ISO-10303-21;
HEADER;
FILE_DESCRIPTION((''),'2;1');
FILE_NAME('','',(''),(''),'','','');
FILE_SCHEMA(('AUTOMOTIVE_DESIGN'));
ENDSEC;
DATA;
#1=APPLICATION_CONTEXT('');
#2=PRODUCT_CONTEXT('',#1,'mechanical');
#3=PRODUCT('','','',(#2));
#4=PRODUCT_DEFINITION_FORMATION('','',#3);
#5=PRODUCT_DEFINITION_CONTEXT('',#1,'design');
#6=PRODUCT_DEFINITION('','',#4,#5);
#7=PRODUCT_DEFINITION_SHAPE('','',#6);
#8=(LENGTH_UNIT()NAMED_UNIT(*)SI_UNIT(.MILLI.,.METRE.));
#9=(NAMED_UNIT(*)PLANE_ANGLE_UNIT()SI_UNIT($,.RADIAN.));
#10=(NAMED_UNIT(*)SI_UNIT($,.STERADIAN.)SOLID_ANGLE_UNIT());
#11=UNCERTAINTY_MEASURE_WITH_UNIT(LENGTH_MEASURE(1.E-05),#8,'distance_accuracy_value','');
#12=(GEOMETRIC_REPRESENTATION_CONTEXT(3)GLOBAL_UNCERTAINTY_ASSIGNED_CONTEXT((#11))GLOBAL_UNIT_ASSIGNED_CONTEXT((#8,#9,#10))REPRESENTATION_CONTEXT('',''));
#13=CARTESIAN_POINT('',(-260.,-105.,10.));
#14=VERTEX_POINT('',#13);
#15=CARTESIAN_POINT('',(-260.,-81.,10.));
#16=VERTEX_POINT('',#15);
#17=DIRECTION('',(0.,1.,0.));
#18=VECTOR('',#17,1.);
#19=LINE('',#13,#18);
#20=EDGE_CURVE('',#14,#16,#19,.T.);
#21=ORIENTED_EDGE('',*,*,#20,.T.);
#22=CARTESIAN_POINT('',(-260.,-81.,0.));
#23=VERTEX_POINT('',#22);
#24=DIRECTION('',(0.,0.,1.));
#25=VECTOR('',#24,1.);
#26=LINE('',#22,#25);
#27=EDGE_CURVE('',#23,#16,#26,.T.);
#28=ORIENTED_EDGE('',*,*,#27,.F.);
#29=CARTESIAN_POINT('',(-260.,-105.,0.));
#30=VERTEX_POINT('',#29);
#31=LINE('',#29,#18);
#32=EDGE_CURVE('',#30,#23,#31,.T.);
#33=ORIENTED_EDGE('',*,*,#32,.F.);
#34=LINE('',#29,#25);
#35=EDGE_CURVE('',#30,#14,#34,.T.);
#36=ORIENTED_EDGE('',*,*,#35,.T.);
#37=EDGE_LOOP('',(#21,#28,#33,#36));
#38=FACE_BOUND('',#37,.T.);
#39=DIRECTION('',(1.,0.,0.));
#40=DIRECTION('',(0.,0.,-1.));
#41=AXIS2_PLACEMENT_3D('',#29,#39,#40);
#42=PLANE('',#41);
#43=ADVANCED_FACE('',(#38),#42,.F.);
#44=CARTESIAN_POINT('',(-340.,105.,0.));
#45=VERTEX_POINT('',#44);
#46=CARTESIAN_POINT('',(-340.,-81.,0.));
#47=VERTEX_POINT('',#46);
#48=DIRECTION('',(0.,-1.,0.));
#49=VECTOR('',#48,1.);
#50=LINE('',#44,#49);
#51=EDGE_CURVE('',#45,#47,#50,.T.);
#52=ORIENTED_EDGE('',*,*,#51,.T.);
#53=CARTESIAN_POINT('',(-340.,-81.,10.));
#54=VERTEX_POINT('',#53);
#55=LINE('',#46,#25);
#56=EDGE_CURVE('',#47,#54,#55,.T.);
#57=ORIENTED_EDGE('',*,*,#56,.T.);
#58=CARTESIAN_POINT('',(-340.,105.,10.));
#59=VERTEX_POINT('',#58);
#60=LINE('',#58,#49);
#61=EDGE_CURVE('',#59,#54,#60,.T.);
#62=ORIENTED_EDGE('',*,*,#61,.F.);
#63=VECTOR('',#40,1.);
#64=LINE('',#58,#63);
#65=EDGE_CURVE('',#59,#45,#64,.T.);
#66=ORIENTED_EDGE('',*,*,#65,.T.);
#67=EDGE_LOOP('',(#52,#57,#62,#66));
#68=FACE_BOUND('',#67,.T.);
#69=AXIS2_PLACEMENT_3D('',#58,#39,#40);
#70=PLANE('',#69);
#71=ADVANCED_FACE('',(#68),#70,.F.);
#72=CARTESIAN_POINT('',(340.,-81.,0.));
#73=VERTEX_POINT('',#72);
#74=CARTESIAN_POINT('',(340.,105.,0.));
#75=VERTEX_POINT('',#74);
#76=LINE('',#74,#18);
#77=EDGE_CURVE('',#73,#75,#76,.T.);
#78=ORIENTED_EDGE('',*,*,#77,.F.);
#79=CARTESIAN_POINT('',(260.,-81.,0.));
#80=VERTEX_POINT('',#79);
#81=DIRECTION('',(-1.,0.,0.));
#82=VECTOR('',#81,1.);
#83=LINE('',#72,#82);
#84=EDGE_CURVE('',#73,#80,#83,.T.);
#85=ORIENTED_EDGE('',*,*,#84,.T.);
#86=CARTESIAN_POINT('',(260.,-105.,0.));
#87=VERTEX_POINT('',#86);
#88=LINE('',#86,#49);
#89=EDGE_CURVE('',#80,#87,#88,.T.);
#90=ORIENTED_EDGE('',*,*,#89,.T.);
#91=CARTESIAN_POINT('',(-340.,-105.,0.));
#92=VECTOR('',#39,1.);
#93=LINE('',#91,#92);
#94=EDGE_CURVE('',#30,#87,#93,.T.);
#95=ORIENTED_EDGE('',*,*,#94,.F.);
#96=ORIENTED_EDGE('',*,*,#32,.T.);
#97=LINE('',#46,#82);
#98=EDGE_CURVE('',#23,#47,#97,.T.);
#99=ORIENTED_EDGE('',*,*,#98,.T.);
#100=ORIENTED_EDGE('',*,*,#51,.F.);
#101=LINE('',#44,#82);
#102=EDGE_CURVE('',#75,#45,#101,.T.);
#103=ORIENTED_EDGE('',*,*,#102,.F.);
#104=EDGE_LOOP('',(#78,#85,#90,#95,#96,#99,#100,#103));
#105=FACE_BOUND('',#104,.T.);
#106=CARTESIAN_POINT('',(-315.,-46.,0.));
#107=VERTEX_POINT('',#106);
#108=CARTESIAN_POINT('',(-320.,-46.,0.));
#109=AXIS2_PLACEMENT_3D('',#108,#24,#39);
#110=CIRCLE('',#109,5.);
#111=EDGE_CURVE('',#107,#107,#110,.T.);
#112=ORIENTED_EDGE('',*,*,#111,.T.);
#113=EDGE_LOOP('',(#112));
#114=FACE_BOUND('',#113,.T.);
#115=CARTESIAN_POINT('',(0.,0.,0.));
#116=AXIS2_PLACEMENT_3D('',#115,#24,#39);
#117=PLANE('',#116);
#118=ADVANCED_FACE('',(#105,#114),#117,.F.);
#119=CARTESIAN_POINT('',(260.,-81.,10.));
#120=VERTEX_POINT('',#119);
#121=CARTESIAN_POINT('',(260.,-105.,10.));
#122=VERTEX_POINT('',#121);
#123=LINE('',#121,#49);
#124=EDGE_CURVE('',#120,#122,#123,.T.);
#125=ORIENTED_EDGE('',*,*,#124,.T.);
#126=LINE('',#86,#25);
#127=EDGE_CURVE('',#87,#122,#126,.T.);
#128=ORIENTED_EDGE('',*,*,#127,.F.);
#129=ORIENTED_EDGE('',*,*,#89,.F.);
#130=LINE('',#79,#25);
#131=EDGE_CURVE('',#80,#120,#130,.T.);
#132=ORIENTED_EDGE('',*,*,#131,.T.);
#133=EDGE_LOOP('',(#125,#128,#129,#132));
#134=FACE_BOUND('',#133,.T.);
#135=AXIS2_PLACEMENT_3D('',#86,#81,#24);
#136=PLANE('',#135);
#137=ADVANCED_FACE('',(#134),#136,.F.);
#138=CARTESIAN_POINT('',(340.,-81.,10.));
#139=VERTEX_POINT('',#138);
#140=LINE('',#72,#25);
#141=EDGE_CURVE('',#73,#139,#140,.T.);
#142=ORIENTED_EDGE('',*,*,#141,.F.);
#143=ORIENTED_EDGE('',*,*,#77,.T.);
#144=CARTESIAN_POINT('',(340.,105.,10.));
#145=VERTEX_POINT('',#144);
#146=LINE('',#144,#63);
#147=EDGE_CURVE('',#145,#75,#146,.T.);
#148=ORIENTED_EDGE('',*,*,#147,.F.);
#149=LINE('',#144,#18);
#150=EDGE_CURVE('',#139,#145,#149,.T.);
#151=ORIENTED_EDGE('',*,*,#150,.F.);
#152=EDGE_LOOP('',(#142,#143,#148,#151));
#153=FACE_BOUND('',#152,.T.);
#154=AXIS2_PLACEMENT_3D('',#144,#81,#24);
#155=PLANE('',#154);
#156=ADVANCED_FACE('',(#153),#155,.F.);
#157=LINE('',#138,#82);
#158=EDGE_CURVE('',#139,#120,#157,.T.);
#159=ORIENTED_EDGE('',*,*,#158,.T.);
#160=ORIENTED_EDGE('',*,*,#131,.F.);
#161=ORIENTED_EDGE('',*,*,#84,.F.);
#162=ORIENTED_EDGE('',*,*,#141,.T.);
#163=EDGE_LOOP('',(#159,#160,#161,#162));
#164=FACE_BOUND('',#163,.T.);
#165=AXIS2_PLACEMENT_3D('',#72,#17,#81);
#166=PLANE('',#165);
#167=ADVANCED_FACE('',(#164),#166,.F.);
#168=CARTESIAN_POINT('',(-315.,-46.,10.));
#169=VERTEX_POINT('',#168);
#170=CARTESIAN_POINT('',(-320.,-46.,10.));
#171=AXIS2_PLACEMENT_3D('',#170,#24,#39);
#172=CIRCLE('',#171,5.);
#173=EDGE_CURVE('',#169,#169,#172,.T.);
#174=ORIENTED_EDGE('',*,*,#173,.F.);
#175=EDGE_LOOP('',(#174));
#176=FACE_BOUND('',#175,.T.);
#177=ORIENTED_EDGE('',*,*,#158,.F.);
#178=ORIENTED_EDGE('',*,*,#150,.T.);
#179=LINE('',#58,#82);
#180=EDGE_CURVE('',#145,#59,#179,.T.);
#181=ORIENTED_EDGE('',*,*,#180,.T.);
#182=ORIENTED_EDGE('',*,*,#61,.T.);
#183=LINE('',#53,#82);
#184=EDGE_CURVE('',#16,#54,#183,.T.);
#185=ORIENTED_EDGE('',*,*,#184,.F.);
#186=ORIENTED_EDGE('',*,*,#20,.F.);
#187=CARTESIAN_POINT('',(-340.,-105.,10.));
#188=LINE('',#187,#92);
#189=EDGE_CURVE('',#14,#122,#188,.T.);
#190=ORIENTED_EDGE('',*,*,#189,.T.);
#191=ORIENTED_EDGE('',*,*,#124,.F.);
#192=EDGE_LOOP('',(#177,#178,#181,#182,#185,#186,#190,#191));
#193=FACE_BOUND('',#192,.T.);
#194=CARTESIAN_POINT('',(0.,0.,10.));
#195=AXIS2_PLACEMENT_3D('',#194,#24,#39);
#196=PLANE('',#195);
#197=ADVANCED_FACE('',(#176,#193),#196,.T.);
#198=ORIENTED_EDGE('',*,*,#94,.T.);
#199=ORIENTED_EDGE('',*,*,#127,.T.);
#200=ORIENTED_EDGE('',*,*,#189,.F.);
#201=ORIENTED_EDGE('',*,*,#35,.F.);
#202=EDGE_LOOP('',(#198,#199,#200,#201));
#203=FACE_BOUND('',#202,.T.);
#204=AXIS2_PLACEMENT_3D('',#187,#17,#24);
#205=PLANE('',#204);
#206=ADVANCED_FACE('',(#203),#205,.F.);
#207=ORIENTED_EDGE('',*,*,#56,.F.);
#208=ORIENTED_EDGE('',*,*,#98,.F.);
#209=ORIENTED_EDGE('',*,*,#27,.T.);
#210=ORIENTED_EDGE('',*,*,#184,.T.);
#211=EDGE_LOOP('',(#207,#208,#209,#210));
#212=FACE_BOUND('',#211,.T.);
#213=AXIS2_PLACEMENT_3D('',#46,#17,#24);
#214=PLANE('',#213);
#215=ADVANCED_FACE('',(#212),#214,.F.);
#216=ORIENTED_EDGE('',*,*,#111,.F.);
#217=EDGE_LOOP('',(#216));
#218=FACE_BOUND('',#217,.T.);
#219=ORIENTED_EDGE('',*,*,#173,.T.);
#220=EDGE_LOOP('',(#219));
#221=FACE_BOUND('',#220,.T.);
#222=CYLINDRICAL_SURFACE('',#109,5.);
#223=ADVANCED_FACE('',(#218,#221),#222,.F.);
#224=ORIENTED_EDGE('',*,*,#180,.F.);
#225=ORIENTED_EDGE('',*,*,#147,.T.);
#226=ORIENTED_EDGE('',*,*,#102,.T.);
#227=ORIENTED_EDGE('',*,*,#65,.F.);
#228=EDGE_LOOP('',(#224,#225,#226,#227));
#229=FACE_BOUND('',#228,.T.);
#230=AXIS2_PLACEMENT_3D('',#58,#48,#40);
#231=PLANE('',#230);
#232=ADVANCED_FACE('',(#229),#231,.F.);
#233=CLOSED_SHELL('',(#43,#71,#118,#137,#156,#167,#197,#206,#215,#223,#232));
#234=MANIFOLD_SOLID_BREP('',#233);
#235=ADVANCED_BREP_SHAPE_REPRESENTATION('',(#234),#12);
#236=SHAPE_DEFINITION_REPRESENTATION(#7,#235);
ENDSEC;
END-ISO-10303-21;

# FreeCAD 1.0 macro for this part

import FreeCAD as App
import Part
import Sketcher

V = App.Vector

doc = App.newDocument("Part")
params = doc.addObject("Spreadsheet::Sheet", "Params")
for row, (alias, value) in enumerate([
    ("sketch1_width", "680 mm"),
    ("sketch1_height", "210 mm"),
    ("pad1_length", "10 mm"),
    ("sketch2_width", "80 mm"),
    ("sketch2_height", "24 mm"),
    ("sketch3_diameter", "10 mm"),
], start=1):
    params.set(f"A{row}", alias)
    params.set(f"B{row}", "=" + value)
    params.setAlias(f"B{row}", alias)

body = doc.addObject("PartDesign::Body", "Body")

# Sketch on XY plane
sketch1 = body.newObject("Sketcher::SketchObject", "Sketch")
sketch1.AttachmentSupport = (doc.getObject("XY_Plane"), [""])
sketch1.MapMode = "FlatFace"
sketch1.addGeometry(Part.LineSegment(V(-340, 105, 0), V(-340, -105, 0)), False)
sketch1.addGeometry(Part.LineSegment(V(-340, -105, 0), V(340, -105, 0)), False)
sketch1.addGeometry(Part.LineSegment(V(340, -105, 0), V(340, 105, 0)), False)
sketch1.addGeometry(Part.LineSegment(V(340, 105, 0), V(-340, 105, 0)), False)
sketch1.addConstraint(Sketcher.Constraint("Coincident", 0, 2, 1, 1))
sketch1.addConstraint(Sketcher.Constraint("Coincident", 1, 2, 2, 1))
sketch1.addConstraint(Sketcher.Constraint("Coincident", 2, 2, 3, 1))
sketch1.addConstraint(Sketcher.Constraint("Coincident", 3, 2, 0, 1))
sketch1.addConstraint(Sketcher.Constraint("Vertical", 0))
sketch1.addConstraint(Sketcher.Constraint("Horizontal", 1))
sketch1.addConstraint(Sketcher.Constraint("Vertical", 2))
sketch1.addConstraint(Sketcher.Constraint("Horizontal", 3))
sketch1.addConstraint(Sketcher.Constraint("Symmetric", 0, 2, 2, 2, -1, 1))
sketch1.addConstraint(Sketcher.Constraint("DistanceX", 1, 1, 1, 2, 680.0))
sketch1.addConstraint(Sketcher.Constraint("DistanceY", 0, 2, 0, 1, 210.0))
sketch1.setExpression("Constraints[9]", "Params.sketch1_width")
sketch1.setExpression("Constraints[10]", "Params.sketch1_height")
pad1 = body.newObject("PartDesign::Pad", "Pad")
pad1.Profile = sketch1
pad1.setExpression("Length", "Params.pad1_length")

# Sketch on XY plane
sketch2 = body.newObject("Sketcher::SketchObject", "Sketch001")
sketch2.AttachmentSupport = (doc.getObject("XY_Plane"), [""])
sketch2.MapMode = "FlatFace"
sketch2.AttachmentOffset = App.Placement(V(0, 0, 10), App.Rotation())
sketch2.addGeometry(Part.LineSegment(V(-340, -81, 0), V(-340, -105, 0)), False)
sketch2.addGeometry(Part.LineSegment(V(-340, -105, 0), V(-260, -105, 0)), False)
sketch2.addGeometry(Part.LineSegment(V(-260, -105, 0), V(-260, -81, 0)), False)
sketch2.addGeometry(Part.LineSegment(V(-260, -81, 0), V(-340, -81, 0)), False)
sketch2.addGeometry(Part.LineSegment(V(260, -81, 0), V(260, -105, 0)), False)
sketch2.addGeometry(Part.LineSegment(V(260, -105, 0), V(340, -105, 0)), False)
sketch2.addGeometry(Part.LineSegment(V(340, -105, 0), V(340, -81, 0)), False)
sketch2.addGeometry(Part.LineSegment(V(340, -81, 0), V(260, -81, 0)), False)
sketch2.addConstraint(Sketcher.Constraint("Coincident", 0, 2, 1, 1))
sketch2.addConstraint(Sketcher.Constraint("Coincident", 1, 2, 2, 1))
sketch2.addConstraint(Sketcher.Constraint("Coincident", 2, 2, 3, 1))
sketch2.addConstraint(Sketcher.Constraint("Coincident", 3, 2, 0, 1))
sketch2.addConstraint(Sketcher.Constraint("Coincident", 4, 2, 5, 1))
sketch2.addConstraint(Sketcher.Constraint("Coincident", 5, 2, 6, 1))
sketch2.addConstraint(Sketcher.Constraint("Coincident", 6, 2, 7, 1))
sketch2.addConstraint(Sketcher.Constraint("Coincident", 7, 2, 4, 1))
sketch2.addConstraint(Sketcher.Constraint("Vertical", 0))
sketch2.addConstraint(Sketcher.Constraint("Horizontal", 1))
sketch2.addConstraint(Sketcher.Constraint("Vertical", 2))
sketch2.addConstraint(Sketcher.Constraint("Horizontal", 3))
sketch2.addConstraint(Sketcher.Constraint("Vertical", 4))
sketch2.addConstraint(Sketcher.Constraint("Horizontal", 5))
sketch2.addConstraint(Sketcher.Constraint("Vertical", 6))
sketch2.addConstraint(Sketcher.Constraint("Horizontal", 7))
sketch2.addConstraint(Sketcher.Constraint("Symmetric", 1, 2, 4, 2, -2))
sketch2.addConstraint(Sketcher.Constraint("Symmetric", 3, 2, 6, 2, -2))
sketch2.addConstraint(Sketcher.Constraint("DistanceX", 1, 1, 1, 2, 80.0))
sketch2.addConstraint(Sketcher.Constraint("DistanceY", 0, 2, 0, 1, 24.0))
sketch2.addConstraint(Sketcher.Constraint("DistanceX", 0, 2, -1, 1, 340.0))
sketch2.addConstraint(Sketcher.Constraint("DistanceY", 0, 2, -1, 1, 105.0))
sketch2.setExpression("Constraints[18]", "Params.sketch2_width")
sketch2.setExpression("Constraints[19]", "Params.sketch2_height")
pocket1 = body.newObject("PartDesign::Pocket", "Pocket")
pocket1.Profile = sketch2
pocket1.Type = "ThroughAll"

# Sketch on XY plane
sketch3 = body.newObject("Sketcher::SketchObject", "Sketch002")
sketch3.AttachmentSupport = (doc.getObject("XY_Plane"), [""])
sketch3.MapMode = "FlatFace"
sketch3.AttachmentOffset = App.Placement(V(0, 0, 10), App.Rotation())
sketch3.addGeometry(Part.Circle(V(-320, -46, 0), V(0, 0, 1), 5), False)
sketch3.addConstraint(Sketcher.Constraint("Diameter", 0, 10.0))
sketch3.addConstraint(Sketcher.Constraint("DistanceX", 0, 3, -1, 1, 320.0))
sketch3.addConstraint(Sketcher.Constraint("DistanceY", 0, 3, -1, 1, 46.0))
sketch3.setExpression("Constraints[0]", "Params.sketch3_diameter")
pocket2 = body.newObject("PartDesign::Pocket", "Pocket001")
pocket2.Profile = sketch3
pocket2.Type = "ThroughAll"

doc.recompute()
